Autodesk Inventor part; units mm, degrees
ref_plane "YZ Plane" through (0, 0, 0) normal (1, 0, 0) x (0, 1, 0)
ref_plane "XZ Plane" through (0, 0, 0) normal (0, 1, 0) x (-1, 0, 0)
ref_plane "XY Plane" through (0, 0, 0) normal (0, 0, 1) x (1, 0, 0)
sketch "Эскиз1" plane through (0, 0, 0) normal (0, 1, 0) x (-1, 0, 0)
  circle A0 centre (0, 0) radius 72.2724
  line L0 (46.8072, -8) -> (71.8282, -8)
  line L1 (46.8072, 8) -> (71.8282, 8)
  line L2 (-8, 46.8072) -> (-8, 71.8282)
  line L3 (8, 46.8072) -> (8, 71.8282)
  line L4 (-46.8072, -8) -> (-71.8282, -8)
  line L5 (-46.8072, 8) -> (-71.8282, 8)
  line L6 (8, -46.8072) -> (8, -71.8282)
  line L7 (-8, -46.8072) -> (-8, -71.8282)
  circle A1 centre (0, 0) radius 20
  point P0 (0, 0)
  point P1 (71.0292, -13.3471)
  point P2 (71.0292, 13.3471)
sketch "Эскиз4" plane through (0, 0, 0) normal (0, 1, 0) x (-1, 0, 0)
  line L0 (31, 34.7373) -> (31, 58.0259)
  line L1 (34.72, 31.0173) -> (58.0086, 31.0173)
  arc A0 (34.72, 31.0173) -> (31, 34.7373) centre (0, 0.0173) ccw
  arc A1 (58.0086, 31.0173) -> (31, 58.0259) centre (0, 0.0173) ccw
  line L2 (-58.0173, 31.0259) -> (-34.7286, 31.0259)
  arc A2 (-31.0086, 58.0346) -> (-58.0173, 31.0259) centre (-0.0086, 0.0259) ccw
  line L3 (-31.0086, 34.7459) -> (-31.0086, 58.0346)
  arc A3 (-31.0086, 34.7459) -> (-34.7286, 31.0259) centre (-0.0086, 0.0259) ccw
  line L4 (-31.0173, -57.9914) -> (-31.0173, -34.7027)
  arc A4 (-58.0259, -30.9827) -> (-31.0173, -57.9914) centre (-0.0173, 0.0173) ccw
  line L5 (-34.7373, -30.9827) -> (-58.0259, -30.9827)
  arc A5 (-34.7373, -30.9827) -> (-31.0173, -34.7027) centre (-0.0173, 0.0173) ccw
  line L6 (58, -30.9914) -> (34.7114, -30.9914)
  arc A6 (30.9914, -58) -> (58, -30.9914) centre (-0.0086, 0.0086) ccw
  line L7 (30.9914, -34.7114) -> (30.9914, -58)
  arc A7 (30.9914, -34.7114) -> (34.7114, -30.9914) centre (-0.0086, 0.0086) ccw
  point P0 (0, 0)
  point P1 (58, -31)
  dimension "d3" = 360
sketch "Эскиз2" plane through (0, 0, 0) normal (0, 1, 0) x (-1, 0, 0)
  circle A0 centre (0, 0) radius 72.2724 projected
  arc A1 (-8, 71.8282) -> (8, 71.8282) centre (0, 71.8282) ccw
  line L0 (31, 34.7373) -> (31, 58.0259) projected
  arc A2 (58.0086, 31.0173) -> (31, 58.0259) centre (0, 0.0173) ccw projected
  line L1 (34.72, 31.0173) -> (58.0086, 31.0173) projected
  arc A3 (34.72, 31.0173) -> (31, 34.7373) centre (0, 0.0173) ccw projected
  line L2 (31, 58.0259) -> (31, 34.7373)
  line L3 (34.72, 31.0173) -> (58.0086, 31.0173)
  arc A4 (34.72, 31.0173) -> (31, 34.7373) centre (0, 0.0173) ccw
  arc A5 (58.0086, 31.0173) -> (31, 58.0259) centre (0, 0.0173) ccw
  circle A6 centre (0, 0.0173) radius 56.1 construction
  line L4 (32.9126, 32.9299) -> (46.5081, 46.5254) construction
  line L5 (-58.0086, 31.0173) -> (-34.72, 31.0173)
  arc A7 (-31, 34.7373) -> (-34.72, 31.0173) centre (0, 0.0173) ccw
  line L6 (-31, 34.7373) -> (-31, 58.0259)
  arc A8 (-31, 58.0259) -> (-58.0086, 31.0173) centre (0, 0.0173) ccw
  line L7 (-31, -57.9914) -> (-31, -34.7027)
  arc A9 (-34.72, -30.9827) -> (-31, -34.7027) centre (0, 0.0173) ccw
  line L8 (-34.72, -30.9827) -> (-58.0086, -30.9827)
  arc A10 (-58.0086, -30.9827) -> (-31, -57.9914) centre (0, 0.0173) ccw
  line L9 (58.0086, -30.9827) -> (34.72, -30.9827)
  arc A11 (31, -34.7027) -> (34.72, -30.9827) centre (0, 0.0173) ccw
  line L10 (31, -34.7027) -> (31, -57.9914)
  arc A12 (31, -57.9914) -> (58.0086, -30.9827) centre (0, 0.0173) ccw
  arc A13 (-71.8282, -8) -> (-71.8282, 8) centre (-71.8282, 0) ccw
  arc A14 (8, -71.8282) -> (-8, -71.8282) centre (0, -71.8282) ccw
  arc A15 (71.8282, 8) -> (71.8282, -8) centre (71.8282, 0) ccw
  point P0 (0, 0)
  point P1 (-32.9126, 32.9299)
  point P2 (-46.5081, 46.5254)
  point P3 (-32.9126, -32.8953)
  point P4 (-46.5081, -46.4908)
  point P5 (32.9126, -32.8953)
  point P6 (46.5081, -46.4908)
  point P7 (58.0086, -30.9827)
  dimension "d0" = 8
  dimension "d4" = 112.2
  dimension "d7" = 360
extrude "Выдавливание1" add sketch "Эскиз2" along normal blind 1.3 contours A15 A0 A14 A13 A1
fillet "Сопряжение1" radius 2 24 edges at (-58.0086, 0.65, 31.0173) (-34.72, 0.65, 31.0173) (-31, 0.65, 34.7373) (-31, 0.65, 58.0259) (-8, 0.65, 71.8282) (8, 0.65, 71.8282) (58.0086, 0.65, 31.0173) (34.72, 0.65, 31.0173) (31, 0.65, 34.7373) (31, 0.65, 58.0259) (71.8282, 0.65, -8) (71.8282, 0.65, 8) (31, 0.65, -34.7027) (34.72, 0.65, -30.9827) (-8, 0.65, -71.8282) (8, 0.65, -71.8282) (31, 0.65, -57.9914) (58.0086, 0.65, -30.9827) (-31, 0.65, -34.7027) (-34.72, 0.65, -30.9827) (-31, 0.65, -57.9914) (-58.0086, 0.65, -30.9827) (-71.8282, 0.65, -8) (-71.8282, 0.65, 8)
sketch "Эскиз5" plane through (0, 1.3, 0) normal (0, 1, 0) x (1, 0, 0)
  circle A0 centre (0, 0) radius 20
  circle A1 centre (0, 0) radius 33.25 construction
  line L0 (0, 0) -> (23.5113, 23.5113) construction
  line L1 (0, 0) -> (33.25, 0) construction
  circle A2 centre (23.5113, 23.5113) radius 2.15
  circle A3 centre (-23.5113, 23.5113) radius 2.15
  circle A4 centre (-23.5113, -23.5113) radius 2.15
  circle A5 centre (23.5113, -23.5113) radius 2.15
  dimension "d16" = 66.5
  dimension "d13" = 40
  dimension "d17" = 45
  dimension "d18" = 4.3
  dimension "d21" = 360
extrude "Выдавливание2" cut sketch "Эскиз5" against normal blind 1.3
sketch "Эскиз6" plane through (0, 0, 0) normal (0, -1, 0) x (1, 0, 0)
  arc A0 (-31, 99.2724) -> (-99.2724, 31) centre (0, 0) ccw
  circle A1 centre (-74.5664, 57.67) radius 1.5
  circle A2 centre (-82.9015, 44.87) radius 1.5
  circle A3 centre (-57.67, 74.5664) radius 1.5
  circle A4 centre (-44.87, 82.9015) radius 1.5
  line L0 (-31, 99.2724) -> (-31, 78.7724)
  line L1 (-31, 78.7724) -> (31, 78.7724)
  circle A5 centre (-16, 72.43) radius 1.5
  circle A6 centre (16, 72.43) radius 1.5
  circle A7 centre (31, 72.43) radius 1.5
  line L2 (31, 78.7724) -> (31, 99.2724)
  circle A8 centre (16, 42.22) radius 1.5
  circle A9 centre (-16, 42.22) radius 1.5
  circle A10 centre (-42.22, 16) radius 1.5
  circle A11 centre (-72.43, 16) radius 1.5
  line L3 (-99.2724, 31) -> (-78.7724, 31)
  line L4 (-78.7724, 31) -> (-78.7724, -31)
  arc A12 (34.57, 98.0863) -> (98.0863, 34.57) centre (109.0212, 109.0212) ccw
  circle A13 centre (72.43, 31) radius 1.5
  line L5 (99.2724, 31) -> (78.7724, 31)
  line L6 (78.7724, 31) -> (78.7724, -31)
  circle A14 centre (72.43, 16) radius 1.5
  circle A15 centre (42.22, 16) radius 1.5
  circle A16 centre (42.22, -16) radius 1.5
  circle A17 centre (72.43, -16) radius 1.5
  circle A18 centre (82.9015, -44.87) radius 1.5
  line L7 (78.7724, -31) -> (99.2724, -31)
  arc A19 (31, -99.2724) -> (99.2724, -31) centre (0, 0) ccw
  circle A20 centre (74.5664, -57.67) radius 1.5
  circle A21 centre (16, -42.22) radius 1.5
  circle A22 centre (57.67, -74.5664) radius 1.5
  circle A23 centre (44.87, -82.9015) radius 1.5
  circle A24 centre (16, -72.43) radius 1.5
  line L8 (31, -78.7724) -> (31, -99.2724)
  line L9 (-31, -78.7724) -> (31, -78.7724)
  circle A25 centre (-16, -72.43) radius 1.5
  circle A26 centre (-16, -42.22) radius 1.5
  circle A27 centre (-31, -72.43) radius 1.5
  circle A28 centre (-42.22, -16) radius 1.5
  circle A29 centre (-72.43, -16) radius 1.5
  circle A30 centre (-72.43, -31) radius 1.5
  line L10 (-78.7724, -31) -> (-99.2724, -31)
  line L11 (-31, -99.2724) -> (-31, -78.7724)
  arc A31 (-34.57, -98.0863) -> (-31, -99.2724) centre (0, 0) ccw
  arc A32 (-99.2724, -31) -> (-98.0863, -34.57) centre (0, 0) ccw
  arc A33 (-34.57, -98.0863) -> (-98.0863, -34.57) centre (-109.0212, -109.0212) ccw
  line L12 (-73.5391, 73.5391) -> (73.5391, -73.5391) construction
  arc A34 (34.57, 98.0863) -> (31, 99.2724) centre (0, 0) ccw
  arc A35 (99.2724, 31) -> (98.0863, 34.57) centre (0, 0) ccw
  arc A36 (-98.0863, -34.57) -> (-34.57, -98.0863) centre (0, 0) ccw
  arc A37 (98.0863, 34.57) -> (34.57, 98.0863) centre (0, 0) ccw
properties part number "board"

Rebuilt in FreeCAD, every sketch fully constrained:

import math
import FreeCAD as App
import Part
import Sketcher

V = App.Vector
Q = App.Units.Quantity


def edges_at(feature, points):
    """Names of the edges that pass closest to the given points."""
    edges = feature.Shape.Edges
    near = lambda p: min(range(len(edges)), key=lambda i: edges[i].distToShape(Part.Vertex(*p))[0])
    return sorted({f"Edge{near(p) + 1}" for p in points})

doc = App.newDocument("Part")
body = doc.addObject("PartDesign::Body", "Body")

# Sketch on XZ plane
sketch1 = body.newObject("Sketcher::SketchObject", "Sketch")
sketch1.AttachmentSupport = (doc.getObject("XZ_Plane"), [""])
sketch1.MapMode = "FlatFace"
sketch1.addGeometry(Part.ArcOfCircle(Part.Circle(V(-72, 0, 0), V(0, 0, 1), 8), math.radians(-90), math.radians(90)), False)
sketch1.addGeometry(Part.ArcOfCircle(Part.Circle(V(0, 0, 0), V(0, 0, 1), 72), math.radians(96), math.radians(174)), False)
sketch1.addGeometry(Part.ArcOfCircle(Part.Circle(V(0, 72, 0), V(0, 0, 1), 8), math.radians(180), math.radians(360)), False)
sketch1.addGeometry(Part.ArcOfCircle(Part.Circle(V(0, 0, 0), V(0, 0, 1), 72), math.radians(6), math.radians(84)), False)
sketch1.addGeometry(Part.ArcOfCircle(Part.Circle(V(72, 0, 0), V(0, 0, 1), 8), math.radians(90), math.radians(270)), False)
sketch1.addGeometry(Part.ArcOfCircle(Part.Circle(V(0, 0, 0), V(0, 0, 1), 72), math.radians(-84), math.radians(-6)), False)
sketch1.addGeometry(Part.ArcOfCircle(Part.Circle(V(0, -72, 0), V(0, 0, 1), 8), math.radians(0), math.radians(180)), False)
sketch1.addGeometry(Part.ArcOfCircle(Part.Circle(V(0, 0, 0), V(0, 0, 1), 72), math.radians(-174), math.radians(-96)), False)
sketch1.addGeometry(Part.LineSegment(V(31, -35, 0), V(31, -58, 0)), False)
sketch1.addGeometry(Part.ArcOfCircle(Part.Circle(V(0, 0, 0), V(0, 0, 1), 66), math.radians(-62), math.radians(-28)), False)
sketch1.addGeometry(Part.LineSegment(V(58, -31, 0), V(35, -31, 0)), False)
sketch1.addGeometry(Part.ArcOfCircle(Part.Circle(V(0, 0, 0), V(0, 0, 1), 47), math.radians(-48.24), math.radians(-41.76)), False)
sketch1.addGeometry(Part.LineSegment(V(-35, -31, 0), V(-58, -31, 0)), False)
sketch1.addGeometry(Part.ArcOfCircle(Part.Circle(V(0, 0, 0), V(0, 0, 1), 66), math.radians(-152), math.radians(-118)), False)
sketch1.addGeometry(Part.LineSegment(V(-31, -58, 0), V(-31, -35, 0)), False)
sketch1.addGeometry(Part.ArcOfCircle(Part.Circle(V(0, 0, 0), V(0, 0, 1), 47), math.radians(-138.24), math.radians(-131.76)), False)
sketch1.addGeometry(Part.LineSegment(V(35, 31, 0), V(58, 31, 0)), False)
sketch1.addGeometry(Part.ArcOfCircle(Part.Circle(V(0, 0, 0), V(0, 0, 1), 66), math.radians(28), math.radians(62)), False)
sketch1.addGeometry(Part.LineSegment(V(31, 58, 0), V(31, 35, 0)), False)
sketch1.addGeometry(Part.ArcOfCircle(Part.Circle(V(0, 0, 0), V(0, 0, 1), 47), math.radians(41.76), math.radians(48.24)), False)
sketch1.addGeometry(Part.ArcOfCircle(Part.Circle(V(0, 0, 0), V(0, 0, 1), 47), math.radians(131.76), math.radians(138.24)), False)
sketch1.addGeometry(Part.LineSegment(V(-31, 35, 0), V(-31, 58, 0)), False)
sketch1.addGeometry(Part.ArcOfCircle(Part.Circle(V(0, 0, 0), V(0, 0, 1), 66), math.radians(118), math.radians(152)), False)
sketch1.addGeometry(Part.LineSegment(V(-58, 31, 0), V(-35, 31, 0)), False)
sketch1.addConstraint(Sketcher.Constraint("Coincident", 0, 2, 1, 2))
sketch1.addConstraint(Sketcher.Constraint("Coincident", 1, 1, 2, 1))
sketch1.addConstraint(Sketcher.Constraint("Coincident", 2, 2, 3, 2))
sketch1.addConstraint(Sketcher.Constraint("Coincident", 3, 1, 4, 1))
sketch1.addConstraint(Sketcher.Constraint("Coincident", 4, 2, 5, 2))
sketch1.addConstraint(Sketcher.Constraint("Coincident", 5, 1, 6, 1))
sketch1.addConstraint(Sketcher.Constraint("Coincident", 6, 2, 7, 2))
sketch1.addConstraint(Sketcher.Constraint("Coincident", 7, 1, 0, 1))
sketch1.addConstraint(Sketcher.Constraint("Coincident", 8, 2, 9, 1))
sketch1.addConstraint(Sketcher.Constraint("Coincident", 9, 2, 10, 1))
sketch1.addConstraint(Sketcher.Constraint("Coincident", 10, 2, 11, 2))
sketch1.addConstraint(Sketcher.Constraint("Coincident", 11, 1, 8, 1))
sketch1.addConstraint(Sketcher.Constraint("Coincident", 12, 2, 13, 1))
sketch1.addConstraint(Sketcher.Constraint("Coincident", 13, 2, 14, 1))
sketch1.addConstraint(Sketcher.Constraint("Coincident", 14, 2, 15, 2))
sketch1.addConstraint(Sketcher.Constraint("Coincident", 15, 1, 12, 1))
sketch1.addConstraint(Sketcher.Constraint("Coincident", 16, 2, 17, 1))
sketch1.addConstraint(Sketcher.Constraint("Coincident", 17, 2, 18, 1))
sketch1.addConstraint(Sketcher.Constraint("Coincident", 18, 2, 19, 2))
sketch1.addConstraint(Sketcher.Constraint("Coincident", 19, 1, 16, 1))
sketch1.addConstraint(Sketcher.Constraint("Coincident", 20, 1, 21, 1))
sketch1.addConstraint(Sketcher.Constraint("Coincident", 21, 2, 22, 1))
sketch1.addConstraint(Sketcher.Constraint("Coincident", 22, 2, 23, 1))
sketch1.addConstraint(Sketcher.Constraint("Coincident", 23, 2, 20, 2))
sketch1.addConstraint(Sketcher.Constraint("Vertical", 8))
sketch1.addConstraint(Sketcher.Constraint("Horizontal", 10))
sketch1.addConstraint(Sketcher.Constraint("Horizontal", 12))
sketch1.addConstraint(Sketcher.Constraint("Vertical", 14))
sketch1.addConstraint(Sketcher.Constraint("Horizontal", 16))
sketch1.addConstraint(Sketcher.Constraint("Vertical", 18))
sketch1.addConstraint(Sketcher.Constraint("Vertical", 21))
sketch1.addConstraint(Sketcher.Constraint("Horizontal", 23))
sketch1.addConstraint(Sketcher.Constraint("Coincident", 1, 3, -1, 1))
sketch1.addConstraint(Sketcher.Constraint("Coincident", 3, 3, -1, 1))
sketch1.addConstraint(Sketcher.Constraint("Coincident", 5, 3, -1, 1))
sketch1.addConstraint(Sketcher.Constraint("Coincident", 7, 3, -1, 1))
sketch1.addConstraint(Sketcher.Constraint("Coincident", 11, 3, 9, 3))
sketch1.addConstraint(Sketcher.Constraint("Coincident", 13, 3, 9, 3))
sketch1.addConstraint(Sketcher.Constraint("Coincident", 15, 3, 9, 3))
sketch1.addConstraint(Sketcher.Constraint("Coincident", 17, 3, 9, 3))
sketch1.addConstraint(Sketcher.Constraint("Coincident", 19, 3, 9, 3))
sketch1.addConstraint(Sketcher.Constraint("Coincident", 20, 3, 9, 3))
sketch1.addConstraint(Sketcher.Constraint("Coincident", 22, 3, 9, 3))
sketch1.addConstraint(Sketcher.Constraint("Equal", 0, 2))
sketch1.addConstraint(Sketcher.Constraint("Equal", 1, 3))
sketch1.addConstraint(Sketcher.Constraint("Equal", 2, 4))
sketch1.addConstraint(Sketcher.Constraint("Equal", 3, 5))
sketch1.addConstraint(Sketcher.Constraint("Equal", 4, 6))
sketch1.addConstraint(Sketcher.Constraint("Equal", 5, 7))
sketch1.addConstraint(Sketcher.Constraint("Equal", 9, 13))
sketch1.addConstraint(Sketcher.Constraint("Equal", 11, 15))
sketch1.addConstraint(Sketcher.Constraint("Equal", 13, 17))
sketch1.addConstraint(Sketcher.Constraint("Equal", 15, 19))
sketch1.addConstraint(Sketcher.Constraint("Equal", 19, 20))
sketch1.addConstraint(Sketcher.Constraint("Equal", 17, 22))
sketch1.addConstraint(Sketcher.Constraint("Symmetric", 0, 3, 4, 3, -1, 1))
sketch1.addConstraint(Sketcher.Constraint("Symmetric", 2, 3, 6, 3, -1, 1))
sketch1.addConstraint(Sketcher.Constraint("Symmetric", 9, 2, 12, 2, -2))
sketch1.addConstraint(Sketcher.Constraint("PointOnObject", 0, 3, -1))
sketch1.addConstraint(Sketcher.Constraint("PointOnObject", 2, 3, -2))
sketch1.addConstraint(Sketcher.Constraint("Horizontal", 2, 3, 1, 1))
sketch1.addConstraint(Sketcher.Constraint("Horizontal", 8, 2, 13, 2))
sketch1.addConstraint(Sketcher.Constraint("Horizontal", 18, 2, 20, 1))
sketch1.addConstraint(Sketcher.Constraint("Horizontal", 19, 1, 22, 2))
sketch1.addConstraint(Sketcher.Constraint("Vertical", 4, 3, 3, 1))
sketch1.addConstraint(Sketcher.Constraint("Vertical", 9, 2, 16, 2))
sketch1.addConstraint(Sketcher.Constraint("Vertical", 11, 1, 17, 2))
sketch1.addConstraint(Sketcher.Constraint("Equal", 23, 8))
sketch1.addConstraint(Sketcher.Constraint("Radius", 0, Q("8 mm")))
sketch1.addConstraint(Sketcher.Constraint("DistanceX", -1, 1, 8, 2, Q("31 mm")))
sketch1.addConstraint(Sketcher.Constraint("Radius", 1, Q("72.2724 mm")))
sketch1.addConstraint(Sketcher.Constraint("Radius", 9, Q("65.7724 mm")))
sketch1.addConstraint(Sketcher.Constraint("Radius", 11, Q("46.5454 mm")))
sketch1.addConstraint(Sketcher.Constraint("DistanceY", -1, 1, 17, 2, Q("58.026 mm")))
pad1 = body.newObject("PartDesign::Pad", "Pad")
pad1.Profile = sketch1
pad1.Length = 1.3
pad1.Reversed = True
doc.recompute()

fillet = body.newObject("PartDesign::Fillet", "Fillet")
fillet.Base = (pad1, edges_at(pad1, [
    (-58.009, 0.65, 31.017),
    (-34.72, 0.65, 31.017),
    (-31, 0.65, 34.737),
    (-31, 0.65, 58.026),
    (-8, 0.65, 71.828),
    (8, 0.65, 71.828),
    (58.009, 0.65, 31.017),
    (34.72, 0.65, 31.017),
    (31, 0.65, 34.737),
    (31, 0.65, 58.026),
    (71.828, 0.65, -8),
    (71.828, 0.65, 8),
    (31, 0.65, -34.703),
    (34.72, 0.65, -30.983),
    (-8, 0.65, -71.828),
    (8, 0.65, -71.828),
    (31, 0.65, -57.991),
    (58.009, 0.65, -30.983),
    (-31, 0.65, -34.703),
    (-34.72, 0.65, -30.983),
    (-31, 0.65, -57.991),
    (-58.009, 0.65, -30.983),
    (-71.828, 0.65, -8),
    (-71.828, 0.65, 8),
]))
fillet.Radius = 2

# Sketch on XZ plane
sketch2 = body.newObject("Sketcher::SketchObject", "Sketch001")
sketch2.AttachmentSupport = (doc.getObject("XZ_Plane"), [""])
sketch2.MapMode = "FlatFace"
sketch2.AttachmentOffset = App.Placement(V(0, 0, -1.3), App.Rotation())
sketch2.addGeometry(Part.Circle(V(0, 0, 0), V(0, 0, 1), 20), False)
sketch2.addGeometry(Part.Circle(V(23.5, -23.5, 0), V(0, 0, 1), 2.1), False)
sketch2.addGeometry(Part.Circle(V(-23.5, -23.5, 0), V(0, 0, 1), 2.1), False)
sketch2.addGeometry(Part.Circle(V(-23.5, 23.5, 0), V(0, 0, 1), 2.1), False)
sketch2.addGeometry(Part.Circle(V(23.5, 23.5, 0), V(0, 0, 1), 2.1), False)
sketch2.addConstraint(Sketcher.Constraint("Coincident", 0, 3, -1, 1))
sketch2.addConstraint(Sketcher.Constraint("Equal", 1, 2))
sketch2.addConstraint(Sketcher.Constraint("Equal", 2, 3))
sketch2.addConstraint(Sketcher.Constraint("Equal", 3, 4))
sketch2.addConstraint(Sketcher.Constraint("Symmetric", 1, 3, 3, 3, -1, 1))
sketch2.addConstraint(Sketcher.Constraint("Symmetric", 2, 3, 4, 3, -1, 1))
sketch2.addConstraint(Sketcher.Constraint("Symmetric", 1, 3, 2, 3, -2))
sketch2.addConstraint(Sketcher.Constraint("Diameter", 0, Q("40 mm")))
sketch2.addConstraint(Sketcher.Constraint("Diameter", 1, Q("4.3 mm")))
sketch2.addConstraint(Sketcher.Constraint("DistanceX", -1, 1, 1, 3, Q("23.5113 mm")))
sketch2.addConstraint(Sketcher.Constraint("DistanceY", 1, 3, -1, 1, Q("23.5113 mm")))
pocket1 = body.newObject("PartDesign::Pocket", "Pocket")
pocket1.Profile = sketch2
pocket1.Length = 1.3
pocket1.Reversed = True

doc.recompute()
